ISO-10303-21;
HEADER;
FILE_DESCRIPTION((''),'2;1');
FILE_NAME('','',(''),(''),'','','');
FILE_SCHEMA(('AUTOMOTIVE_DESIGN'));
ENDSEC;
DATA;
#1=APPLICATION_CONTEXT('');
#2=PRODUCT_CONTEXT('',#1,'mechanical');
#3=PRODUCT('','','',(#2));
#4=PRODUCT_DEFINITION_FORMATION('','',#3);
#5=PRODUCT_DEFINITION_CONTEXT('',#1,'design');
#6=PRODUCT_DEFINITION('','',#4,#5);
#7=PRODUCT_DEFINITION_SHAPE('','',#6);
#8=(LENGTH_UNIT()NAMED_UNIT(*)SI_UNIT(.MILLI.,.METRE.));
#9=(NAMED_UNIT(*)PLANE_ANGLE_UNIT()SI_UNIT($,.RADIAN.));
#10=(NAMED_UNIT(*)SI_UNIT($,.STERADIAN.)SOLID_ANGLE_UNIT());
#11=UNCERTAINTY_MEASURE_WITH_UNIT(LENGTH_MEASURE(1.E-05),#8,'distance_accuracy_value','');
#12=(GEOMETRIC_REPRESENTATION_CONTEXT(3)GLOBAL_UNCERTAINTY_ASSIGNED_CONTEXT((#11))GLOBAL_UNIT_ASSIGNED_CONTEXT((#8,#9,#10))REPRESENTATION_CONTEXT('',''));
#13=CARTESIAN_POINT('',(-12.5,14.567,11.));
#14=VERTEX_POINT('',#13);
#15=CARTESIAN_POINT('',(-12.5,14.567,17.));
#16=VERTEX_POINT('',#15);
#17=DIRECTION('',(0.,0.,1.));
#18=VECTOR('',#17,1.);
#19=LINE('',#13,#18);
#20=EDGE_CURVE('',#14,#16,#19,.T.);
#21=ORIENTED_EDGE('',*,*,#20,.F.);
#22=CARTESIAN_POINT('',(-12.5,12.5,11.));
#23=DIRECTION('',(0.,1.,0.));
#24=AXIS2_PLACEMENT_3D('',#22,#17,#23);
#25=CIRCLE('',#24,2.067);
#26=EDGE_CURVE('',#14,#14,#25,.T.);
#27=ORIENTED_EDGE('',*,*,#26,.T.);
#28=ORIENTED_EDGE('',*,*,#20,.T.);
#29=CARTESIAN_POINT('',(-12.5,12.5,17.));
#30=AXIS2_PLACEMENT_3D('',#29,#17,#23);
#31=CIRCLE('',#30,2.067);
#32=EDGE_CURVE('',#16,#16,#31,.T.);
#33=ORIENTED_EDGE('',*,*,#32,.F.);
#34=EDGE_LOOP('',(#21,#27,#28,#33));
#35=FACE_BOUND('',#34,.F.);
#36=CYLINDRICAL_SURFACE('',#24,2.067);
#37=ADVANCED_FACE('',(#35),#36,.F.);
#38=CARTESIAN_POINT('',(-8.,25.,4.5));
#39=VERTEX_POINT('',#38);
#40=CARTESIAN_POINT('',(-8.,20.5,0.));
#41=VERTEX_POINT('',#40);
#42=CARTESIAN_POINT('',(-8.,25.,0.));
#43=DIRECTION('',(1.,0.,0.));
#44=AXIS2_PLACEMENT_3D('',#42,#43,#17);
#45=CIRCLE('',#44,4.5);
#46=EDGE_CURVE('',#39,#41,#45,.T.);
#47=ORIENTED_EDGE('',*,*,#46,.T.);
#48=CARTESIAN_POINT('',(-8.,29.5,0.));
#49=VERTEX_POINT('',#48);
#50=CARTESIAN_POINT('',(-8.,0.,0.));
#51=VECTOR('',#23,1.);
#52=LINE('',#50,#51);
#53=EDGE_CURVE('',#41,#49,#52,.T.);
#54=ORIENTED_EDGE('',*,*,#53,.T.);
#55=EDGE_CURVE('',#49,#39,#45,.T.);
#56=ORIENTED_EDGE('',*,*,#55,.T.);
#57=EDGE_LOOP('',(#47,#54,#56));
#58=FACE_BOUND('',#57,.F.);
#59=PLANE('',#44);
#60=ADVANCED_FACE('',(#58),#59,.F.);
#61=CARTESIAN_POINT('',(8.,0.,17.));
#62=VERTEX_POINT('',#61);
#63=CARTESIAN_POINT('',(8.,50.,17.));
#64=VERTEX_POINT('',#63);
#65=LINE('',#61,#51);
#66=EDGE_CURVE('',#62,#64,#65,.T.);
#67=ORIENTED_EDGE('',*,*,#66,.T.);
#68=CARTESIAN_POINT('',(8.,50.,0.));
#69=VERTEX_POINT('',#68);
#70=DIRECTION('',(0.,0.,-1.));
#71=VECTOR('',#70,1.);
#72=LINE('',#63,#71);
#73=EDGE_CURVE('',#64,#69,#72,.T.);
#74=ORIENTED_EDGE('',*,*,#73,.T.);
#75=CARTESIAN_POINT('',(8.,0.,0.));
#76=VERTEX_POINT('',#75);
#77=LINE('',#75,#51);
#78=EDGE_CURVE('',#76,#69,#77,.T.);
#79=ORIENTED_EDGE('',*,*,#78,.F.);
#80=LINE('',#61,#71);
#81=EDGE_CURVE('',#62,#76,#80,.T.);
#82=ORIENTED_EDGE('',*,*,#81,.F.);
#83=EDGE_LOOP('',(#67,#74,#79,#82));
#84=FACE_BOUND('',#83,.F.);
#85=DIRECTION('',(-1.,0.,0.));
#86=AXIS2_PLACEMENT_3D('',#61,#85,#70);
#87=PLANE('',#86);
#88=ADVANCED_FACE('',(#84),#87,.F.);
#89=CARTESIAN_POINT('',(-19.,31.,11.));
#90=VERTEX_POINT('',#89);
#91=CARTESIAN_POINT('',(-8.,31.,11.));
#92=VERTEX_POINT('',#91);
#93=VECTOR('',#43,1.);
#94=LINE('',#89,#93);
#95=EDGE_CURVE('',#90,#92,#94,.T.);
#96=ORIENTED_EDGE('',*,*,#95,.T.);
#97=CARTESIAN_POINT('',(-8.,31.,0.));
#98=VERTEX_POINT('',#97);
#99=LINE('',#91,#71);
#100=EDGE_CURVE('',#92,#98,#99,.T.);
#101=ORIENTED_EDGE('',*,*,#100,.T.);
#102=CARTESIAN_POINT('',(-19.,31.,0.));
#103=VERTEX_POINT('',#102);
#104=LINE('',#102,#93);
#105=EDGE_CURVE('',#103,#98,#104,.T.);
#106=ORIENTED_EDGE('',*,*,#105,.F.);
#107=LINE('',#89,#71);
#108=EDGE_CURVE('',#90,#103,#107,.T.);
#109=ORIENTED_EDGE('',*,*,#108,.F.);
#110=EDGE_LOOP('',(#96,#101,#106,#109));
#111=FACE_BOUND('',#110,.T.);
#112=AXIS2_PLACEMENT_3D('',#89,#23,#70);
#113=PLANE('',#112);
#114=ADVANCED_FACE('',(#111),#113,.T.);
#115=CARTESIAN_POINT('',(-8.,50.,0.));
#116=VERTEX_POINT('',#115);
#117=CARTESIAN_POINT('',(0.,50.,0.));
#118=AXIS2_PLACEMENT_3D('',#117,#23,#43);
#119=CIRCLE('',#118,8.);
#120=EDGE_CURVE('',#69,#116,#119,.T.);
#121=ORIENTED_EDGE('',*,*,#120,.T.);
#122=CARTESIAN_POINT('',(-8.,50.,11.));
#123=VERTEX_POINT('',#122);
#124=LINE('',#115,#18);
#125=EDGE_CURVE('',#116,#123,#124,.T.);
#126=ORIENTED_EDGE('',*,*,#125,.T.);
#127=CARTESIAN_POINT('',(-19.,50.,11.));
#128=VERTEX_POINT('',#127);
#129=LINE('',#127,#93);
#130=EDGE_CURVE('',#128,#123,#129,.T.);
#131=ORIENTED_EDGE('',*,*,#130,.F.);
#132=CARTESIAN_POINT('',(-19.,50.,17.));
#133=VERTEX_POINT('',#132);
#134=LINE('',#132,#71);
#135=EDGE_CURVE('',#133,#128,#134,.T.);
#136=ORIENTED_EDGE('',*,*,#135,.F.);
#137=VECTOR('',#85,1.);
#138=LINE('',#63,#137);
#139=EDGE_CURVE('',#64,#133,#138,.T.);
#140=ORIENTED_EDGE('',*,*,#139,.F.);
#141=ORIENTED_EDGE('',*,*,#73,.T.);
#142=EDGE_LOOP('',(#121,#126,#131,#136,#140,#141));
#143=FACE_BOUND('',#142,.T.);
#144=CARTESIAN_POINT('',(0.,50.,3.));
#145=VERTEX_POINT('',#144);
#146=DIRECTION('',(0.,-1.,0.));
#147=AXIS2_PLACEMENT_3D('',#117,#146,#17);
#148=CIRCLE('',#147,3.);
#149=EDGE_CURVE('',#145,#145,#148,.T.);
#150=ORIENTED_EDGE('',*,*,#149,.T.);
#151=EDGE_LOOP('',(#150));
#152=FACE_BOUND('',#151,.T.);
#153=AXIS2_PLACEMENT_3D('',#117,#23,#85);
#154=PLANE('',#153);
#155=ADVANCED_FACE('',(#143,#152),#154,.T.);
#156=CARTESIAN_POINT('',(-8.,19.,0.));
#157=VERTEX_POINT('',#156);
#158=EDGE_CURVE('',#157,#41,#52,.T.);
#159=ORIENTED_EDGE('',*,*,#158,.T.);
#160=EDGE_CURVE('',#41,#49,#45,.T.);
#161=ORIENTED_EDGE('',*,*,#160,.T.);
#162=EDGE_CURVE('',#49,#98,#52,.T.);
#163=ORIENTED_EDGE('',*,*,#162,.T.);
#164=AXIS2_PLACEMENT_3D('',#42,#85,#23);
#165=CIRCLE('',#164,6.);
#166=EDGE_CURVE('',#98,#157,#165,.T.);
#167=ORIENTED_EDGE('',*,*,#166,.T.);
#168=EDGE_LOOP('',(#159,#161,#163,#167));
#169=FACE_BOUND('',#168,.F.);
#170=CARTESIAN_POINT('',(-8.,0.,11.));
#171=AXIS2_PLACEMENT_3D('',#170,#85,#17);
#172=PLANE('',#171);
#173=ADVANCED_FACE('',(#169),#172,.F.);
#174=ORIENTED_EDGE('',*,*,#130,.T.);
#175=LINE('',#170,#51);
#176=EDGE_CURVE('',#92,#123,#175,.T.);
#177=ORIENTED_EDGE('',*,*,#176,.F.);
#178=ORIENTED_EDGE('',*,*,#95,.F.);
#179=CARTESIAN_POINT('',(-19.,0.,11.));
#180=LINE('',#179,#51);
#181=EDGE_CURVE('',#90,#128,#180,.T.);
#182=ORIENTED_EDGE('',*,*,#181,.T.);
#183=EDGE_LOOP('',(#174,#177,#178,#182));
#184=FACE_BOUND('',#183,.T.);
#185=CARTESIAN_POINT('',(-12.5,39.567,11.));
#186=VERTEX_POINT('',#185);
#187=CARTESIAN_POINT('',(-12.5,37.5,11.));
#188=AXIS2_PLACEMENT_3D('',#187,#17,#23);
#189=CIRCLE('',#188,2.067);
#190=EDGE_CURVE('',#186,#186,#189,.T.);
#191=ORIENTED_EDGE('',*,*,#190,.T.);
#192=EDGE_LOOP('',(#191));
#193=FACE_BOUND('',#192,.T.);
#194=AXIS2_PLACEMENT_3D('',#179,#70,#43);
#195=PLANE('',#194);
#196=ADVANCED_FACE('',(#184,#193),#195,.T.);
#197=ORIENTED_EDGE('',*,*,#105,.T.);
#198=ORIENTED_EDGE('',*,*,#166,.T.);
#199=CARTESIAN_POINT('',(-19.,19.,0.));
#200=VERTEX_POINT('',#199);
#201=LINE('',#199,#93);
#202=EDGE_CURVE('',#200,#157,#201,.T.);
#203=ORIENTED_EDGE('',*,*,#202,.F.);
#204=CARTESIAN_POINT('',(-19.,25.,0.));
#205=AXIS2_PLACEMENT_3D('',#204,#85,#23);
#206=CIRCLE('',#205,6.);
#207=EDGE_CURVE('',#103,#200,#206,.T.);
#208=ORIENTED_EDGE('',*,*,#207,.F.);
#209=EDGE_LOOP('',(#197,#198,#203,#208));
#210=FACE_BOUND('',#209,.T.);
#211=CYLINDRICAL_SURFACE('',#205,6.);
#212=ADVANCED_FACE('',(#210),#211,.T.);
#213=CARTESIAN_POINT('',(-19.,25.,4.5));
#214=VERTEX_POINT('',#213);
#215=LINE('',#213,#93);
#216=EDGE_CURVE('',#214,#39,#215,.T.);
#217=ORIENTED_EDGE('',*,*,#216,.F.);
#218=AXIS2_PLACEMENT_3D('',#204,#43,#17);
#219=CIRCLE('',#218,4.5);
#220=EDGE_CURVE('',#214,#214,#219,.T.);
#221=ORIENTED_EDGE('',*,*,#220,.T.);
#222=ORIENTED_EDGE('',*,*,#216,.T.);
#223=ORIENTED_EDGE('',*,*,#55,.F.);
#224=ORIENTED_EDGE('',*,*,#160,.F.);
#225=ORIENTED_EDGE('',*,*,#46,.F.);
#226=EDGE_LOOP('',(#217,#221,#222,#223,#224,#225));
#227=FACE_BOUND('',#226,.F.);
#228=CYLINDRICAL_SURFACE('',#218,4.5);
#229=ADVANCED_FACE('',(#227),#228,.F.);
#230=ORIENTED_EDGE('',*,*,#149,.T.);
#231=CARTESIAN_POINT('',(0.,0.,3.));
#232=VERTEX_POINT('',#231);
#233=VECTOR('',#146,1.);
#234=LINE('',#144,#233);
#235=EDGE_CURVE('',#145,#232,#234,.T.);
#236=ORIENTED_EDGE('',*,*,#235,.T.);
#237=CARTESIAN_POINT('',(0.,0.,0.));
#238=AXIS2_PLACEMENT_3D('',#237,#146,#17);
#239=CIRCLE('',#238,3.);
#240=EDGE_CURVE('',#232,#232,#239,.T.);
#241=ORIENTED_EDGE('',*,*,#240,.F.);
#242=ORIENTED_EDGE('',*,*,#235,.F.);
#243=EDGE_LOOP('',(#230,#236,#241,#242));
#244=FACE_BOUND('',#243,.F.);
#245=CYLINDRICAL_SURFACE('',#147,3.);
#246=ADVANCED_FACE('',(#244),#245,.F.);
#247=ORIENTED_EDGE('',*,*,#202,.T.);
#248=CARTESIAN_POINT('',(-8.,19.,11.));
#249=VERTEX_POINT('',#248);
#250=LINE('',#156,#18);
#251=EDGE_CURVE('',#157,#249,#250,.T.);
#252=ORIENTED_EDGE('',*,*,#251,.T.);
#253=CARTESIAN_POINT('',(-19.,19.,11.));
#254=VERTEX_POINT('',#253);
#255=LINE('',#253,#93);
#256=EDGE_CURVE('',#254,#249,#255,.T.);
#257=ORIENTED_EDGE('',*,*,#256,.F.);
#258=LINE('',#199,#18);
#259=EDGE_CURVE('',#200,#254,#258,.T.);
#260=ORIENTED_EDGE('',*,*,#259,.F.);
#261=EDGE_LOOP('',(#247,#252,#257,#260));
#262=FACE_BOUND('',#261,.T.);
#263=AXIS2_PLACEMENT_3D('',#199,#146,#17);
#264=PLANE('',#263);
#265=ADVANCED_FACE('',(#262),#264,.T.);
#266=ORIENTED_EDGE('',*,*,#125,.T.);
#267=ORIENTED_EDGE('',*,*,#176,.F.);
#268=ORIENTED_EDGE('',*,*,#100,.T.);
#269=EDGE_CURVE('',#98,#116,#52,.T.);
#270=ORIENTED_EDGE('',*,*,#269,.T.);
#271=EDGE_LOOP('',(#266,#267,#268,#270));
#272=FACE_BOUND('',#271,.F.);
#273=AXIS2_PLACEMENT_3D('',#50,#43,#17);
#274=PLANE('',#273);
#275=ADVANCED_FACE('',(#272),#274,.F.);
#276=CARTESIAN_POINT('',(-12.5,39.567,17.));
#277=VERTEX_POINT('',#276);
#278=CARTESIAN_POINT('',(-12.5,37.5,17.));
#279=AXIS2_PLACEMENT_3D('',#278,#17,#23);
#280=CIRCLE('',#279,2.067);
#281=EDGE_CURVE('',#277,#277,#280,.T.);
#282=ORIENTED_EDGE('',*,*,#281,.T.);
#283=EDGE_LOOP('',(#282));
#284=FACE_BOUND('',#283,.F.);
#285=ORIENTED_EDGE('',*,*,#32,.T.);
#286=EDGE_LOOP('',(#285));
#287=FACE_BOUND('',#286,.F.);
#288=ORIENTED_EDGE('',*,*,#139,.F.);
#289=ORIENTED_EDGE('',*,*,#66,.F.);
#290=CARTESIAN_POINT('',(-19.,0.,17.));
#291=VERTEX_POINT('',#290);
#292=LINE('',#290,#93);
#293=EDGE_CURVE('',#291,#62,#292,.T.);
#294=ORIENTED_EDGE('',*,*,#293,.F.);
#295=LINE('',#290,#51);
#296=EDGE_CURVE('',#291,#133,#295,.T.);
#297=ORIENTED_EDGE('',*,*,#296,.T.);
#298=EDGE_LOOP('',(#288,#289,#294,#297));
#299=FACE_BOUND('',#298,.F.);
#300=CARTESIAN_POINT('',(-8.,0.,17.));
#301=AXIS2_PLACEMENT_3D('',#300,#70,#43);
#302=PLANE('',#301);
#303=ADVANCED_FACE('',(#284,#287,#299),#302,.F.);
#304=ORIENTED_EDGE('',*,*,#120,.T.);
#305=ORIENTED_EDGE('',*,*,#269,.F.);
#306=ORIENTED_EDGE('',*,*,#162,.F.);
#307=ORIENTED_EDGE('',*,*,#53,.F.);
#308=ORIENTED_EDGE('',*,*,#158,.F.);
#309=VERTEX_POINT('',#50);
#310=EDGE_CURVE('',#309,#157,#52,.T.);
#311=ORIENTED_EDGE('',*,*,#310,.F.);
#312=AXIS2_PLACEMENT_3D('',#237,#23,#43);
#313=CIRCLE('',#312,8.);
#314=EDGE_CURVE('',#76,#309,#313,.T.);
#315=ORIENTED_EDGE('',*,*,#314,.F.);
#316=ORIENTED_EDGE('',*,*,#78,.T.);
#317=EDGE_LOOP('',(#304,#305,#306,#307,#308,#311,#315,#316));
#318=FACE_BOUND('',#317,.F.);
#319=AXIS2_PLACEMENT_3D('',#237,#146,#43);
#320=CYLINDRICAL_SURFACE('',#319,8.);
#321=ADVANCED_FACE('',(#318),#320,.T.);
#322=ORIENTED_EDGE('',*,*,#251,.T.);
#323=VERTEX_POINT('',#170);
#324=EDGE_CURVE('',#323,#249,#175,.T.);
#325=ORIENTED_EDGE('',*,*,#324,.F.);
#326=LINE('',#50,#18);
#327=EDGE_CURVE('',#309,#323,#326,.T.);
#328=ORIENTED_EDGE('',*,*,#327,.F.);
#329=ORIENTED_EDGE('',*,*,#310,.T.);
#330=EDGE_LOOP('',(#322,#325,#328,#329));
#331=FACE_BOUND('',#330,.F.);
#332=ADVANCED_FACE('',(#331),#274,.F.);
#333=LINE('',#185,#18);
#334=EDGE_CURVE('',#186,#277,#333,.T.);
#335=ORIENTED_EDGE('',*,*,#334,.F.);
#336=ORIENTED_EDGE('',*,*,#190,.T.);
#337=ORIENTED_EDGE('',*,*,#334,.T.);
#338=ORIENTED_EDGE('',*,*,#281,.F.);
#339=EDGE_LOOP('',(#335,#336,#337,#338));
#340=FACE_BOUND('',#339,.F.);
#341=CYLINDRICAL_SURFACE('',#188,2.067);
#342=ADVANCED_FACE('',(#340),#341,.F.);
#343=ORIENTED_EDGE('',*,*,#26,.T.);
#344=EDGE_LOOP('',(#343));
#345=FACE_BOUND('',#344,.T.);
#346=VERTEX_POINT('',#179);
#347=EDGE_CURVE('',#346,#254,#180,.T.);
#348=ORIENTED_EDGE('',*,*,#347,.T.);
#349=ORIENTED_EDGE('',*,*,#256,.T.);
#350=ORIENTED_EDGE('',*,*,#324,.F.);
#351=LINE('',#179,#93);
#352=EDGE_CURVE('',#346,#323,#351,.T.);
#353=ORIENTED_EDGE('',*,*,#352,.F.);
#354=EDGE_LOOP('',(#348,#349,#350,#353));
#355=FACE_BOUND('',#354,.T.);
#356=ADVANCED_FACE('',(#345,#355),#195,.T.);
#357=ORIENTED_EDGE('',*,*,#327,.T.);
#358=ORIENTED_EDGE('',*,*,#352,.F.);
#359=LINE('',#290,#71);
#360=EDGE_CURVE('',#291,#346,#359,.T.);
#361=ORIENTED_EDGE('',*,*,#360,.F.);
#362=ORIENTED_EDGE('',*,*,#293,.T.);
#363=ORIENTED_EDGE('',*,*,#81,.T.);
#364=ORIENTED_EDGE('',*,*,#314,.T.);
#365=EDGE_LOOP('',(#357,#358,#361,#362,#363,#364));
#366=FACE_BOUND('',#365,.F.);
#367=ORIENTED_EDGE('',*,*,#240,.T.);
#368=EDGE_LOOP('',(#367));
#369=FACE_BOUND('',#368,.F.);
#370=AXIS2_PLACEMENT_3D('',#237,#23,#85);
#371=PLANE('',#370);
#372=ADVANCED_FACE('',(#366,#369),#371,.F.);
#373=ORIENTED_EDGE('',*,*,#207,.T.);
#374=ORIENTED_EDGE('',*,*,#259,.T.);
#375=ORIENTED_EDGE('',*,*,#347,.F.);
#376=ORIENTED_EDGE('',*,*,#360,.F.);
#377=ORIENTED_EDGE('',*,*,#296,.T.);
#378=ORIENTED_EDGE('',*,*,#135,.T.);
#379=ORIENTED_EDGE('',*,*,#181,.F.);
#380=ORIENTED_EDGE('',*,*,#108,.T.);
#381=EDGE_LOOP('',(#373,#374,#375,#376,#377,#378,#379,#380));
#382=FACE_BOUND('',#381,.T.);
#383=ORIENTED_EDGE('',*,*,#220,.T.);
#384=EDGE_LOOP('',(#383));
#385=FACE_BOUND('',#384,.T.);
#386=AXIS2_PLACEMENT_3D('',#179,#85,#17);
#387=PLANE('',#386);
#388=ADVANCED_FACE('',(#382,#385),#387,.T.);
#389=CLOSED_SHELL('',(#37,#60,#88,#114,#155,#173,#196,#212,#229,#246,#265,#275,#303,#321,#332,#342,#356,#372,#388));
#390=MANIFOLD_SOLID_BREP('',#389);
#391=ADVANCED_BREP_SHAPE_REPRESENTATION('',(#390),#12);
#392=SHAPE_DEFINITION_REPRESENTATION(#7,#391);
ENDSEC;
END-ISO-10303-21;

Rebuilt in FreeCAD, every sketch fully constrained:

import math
import FreeCAD as App
import Part
import Sketcher

doc = App.newDocument("Part")
body = doc.addObject("PartDesign::Body", "Body")

sketch1 = body.newObject("Sketcher::SketchObject", "Sketch")
sketch1.AttachmentSupport = (doc.getObject("XZ_Plane"), [""])
sketch1.MapMode = "FlatFace"
sketch1.addGeometry(Part.LineSegment(App.Vector(8, 17, 0), App.Vector(8, 0, 0)), False)
sketch1.addGeometry(Part.ArcOfCircle(Part.Circle(App.Vector(0, 0, 0), App.Vector(0, 0, 1), 8), math.radians(180), math.radians(360)), False)
sketch1.addGeometry(Part.LineSegment(App.Vector(-8, 0, 0), App.Vector(-8, 11, 0)), False)
sketch1.addGeometry(Part.LineSegment(App.Vector(-8, 11, 0), App.Vector(-19, 11, 0)), False)
sketch1.addGeometry(Part.LineSegment(App.Vector(-19, 11, 0), App.Vector(-19, 17, 0)), False)
sketch1.addGeometry(Part.LineSegment(App.Vector(-19, 17, 0), App.Vector(8, 17, 0)), False)
sketch1.addConstraint(Sketcher.Constraint("Tangent", 0, 2, 1, 2))
sketch1.addConstraint(Sketcher.Constraint("Tangent", 1, 1, 2, 1))
sketch1.addConstraint(Sketcher.Constraint("Coincident", 2, 2, 3, 1))
sketch1.addConstraint(Sketcher.Constraint("Coincident", 3, 2, 4, 1))
sketch1.addConstraint(Sketcher.Constraint("Coincident", 4, 2, 5, 1))
sketch1.addConstraint(Sketcher.Constraint("Coincident", 5, 2, 0, 1))
sketch1.addConstraint(Sketcher.Constraint("Vertical", 0))
sketch1.addConstraint(Sketcher.Constraint("Vertical", 2))
sketch1.addConstraint(Sketcher.Constraint("Horizontal", 3))
sketch1.addConstraint(Sketcher.Constraint("Vertical", 4))
sketch1.addConstraint(Sketcher.Constraint("Horizontal", 5))
sketch1.addConstraint(Sketcher.Constraint("Coincident", 1, 3, -1, 1))
sketch1.addConstraint(Sketcher.Constraint("Equal", 3, 2))
sketch1.addConstraint(Sketcher.Constraint("Radius", 1, 8.0))
sketch1.addConstraint(Sketcher.Constraint("DistanceX", 3, 2, 3, 1, 11.0))
sketch1.addConstraint(Sketcher.Constraint("DistanceY", 0, 2, 0, 1, 17.0))
pad1 = body.newObject("PartDesign::Pad", "Pad")
pad1.Profile = sketch1
pad1.Length = 50
pad1.Reversed = True

sketch2 = body.newObject("Sketcher::SketchObject", "Sketch001")
sketch2.AttachmentSupport = (doc.getObject("XZ_Plane"), [""])
sketch2.MapMode = "FlatFace"
sketch2.AttachmentOffset = App.Placement(App.Vector(0, 0, -50), App.Rotation())
sketch2.addGeometry(Part.Circle(App.Vector(0, 0, 0), App.Vector(0, 0, 1), 3), False)
sketch2.addConstraint(Sketcher.Constraint("Coincident", 0, 3, -1, 1))
sketch2.addConstraint(Sketcher.Constraint("Diameter", 0, 6.0))
doc.recompute()
hole = body.newObject("PartDesign::Hole", "Hole")
hole.Profile = sketch2
hole.ThreadType = "None"
hole.Diameter = 6
hole.DepthType = "ThroughAll"
hole.Reversed = True

sketch3 = body.newObject("Sketcher::SketchObject", "Sketch002")
sketch3.AttachmentSupport = (doc.getObject("YZ_Plane"), [""])
sketch3.MapMode = "FlatFace"
sketch3.AttachmentOffset = App.Placement(App.Vector(0, 0, -19), App.Rotation())
sketch3.addGeometry(Part.LineSegment(App.Vector(19, 0, 0), App.Vector(19, 11, 0)), False)
sketch3.addGeometry(Part.LineSegment(App.Vector(19, 11, 0), App.Vector(31, 11, 0)), False)
sketch3.addGeometry(Part.LineSegment(App.Vector(31, 11, 0), App.Vector(31, 0, 0)), False)
sketch3.addGeometry(Part.ArcOfCircle(Part.Circle(App.Vector(25, 0, 0), App.Vector(0, 0, 1), 6), math.radians(180), math.radians(360)), False)
sketch3.addConstraint(Sketcher.Constraint("Coincident", 0, 2, 1, 1))
sketch3.addConstraint(Sketcher.Constraint("Coincident", 1, 2, 2, 1))
sketch3.addConstraint(Sketcher.Constraint("Tangent", 2, 2, 3, 2))
sketch3.addConstraint(Sketcher.Constraint("Tangent", 3, 1, 0, 1))
sketch3.addConstraint(Sketcher.Constraint("Vertical", 0))
sketch3.addConstraint(Sketcher.Constraint("Horizontal", 1))
sketch3.addConstraint(Sketcher.Constraint("Vertical", 2))
sketch3.addConstraint(Sketcher.Constraint("PointOnObject", 3, 3, -1))
sketch3.addConstraint(Sketcher.Constraint("Radius", 3, 6.0))
sketch3.addConstraint(Sketcher.Constraint("DistanceY", 0, 1, 0, 2, 11.0))
sketch3.addConstraint(Sketcher.Constraint("DistanceX", -1, 1, 3, 3, 25.0))
pad2 = body.newObject("PartDesign::Pad", "Pad001")
pad2.Profile = sketch3
pad2.Length = 11

sketch4 = body.newObject("Sketcher::SketchObject", "Sketch003")
sketch4.AttachmentSupport = (doc.getObject("YZ_Plane"), [""])
sketch4.MapMode = "FlatFace"
sketch4.AttachmentOffset = App.Placement(App.Vector(0, 0, -19), App.Rotation())
sketch4.addGeometry(Part.Circle(App.Vector(25, 0, 0), App.Vector(0, 0, 1), 4.5), False)
sketch4.addConstraint(Sketcher.Constraint("PointOnObject", 0, 3, -1))
sketch4.addConstraint(Sketcher.Constraint("Diameter", 0, 9.0))
sketch4.addConstraint(Sketcher.Constraint("DistanceX", -1, 1, 0, 3, 25.0))
doc.recompute()
hole2 = body.newObject("PartDesign::Hole", "Hole001")
hole2.Profile = sketch4
hole2.ThreadType = "None"
hole2.Diameter = 9
hole2.DepthType = "Dimension"
hole2.Depth = 11
hole2.DrillPoint = "Flat"
hole2.Reversed = True

sketch5 = body.newObject("Sketcher::SketchObject", "Sketch004")
sketch5.AttachmentSupport = (doc.getObject("XY_Plane"), [""])
sketch5.MapMode = "FlatFace"
sketch5.AttachmentOffset = App.Placement(App.Vector(0, 0, 11), App.Rotation())
sketch5.addGeometry(Part.Circle(App.Vector(-12.5, 37.5, 0), App.Vector(0, 0, 1), 2.1), False)
sketch5.addGeometry(Part.Circle(App.Vector(-12.5, 12.5, 0), App.Vector(0, 0, 1), 2.1), False)
sketch5.addConstraint(Sketcher.Constraint("Equal", 0, 1))
sketch5.addConstraint(Sketcher.Constraint("Vertical", 0, 3, 1, 3))
sketch5.addConstraint(Sketcher.Constraint("Diameter", 0, 4.134))
sketch5.addConstraint(Sketcher.Constraint("DistanceY", 1, 3, 0, 3, 25.0))
sketch5.addConstraint(Sketcher.Constraint("DistanceX", 0, 3, -1, 1, 12.5))
sketch5.addConstraint(Sketcher.Constraint("DistanceY", -1, 1, 0, 3, 37.5))
doc.recompute()
hole3 = body.newObject("PartDesign::Hole", "Hole002")
hole3.Profile = sketch5
hole3.ThreadType = "None"
hole3.Diameter = 4.134
hole3.DepthType = "ThroughAll"
hole3.Reversed = True

doc.recompute()
